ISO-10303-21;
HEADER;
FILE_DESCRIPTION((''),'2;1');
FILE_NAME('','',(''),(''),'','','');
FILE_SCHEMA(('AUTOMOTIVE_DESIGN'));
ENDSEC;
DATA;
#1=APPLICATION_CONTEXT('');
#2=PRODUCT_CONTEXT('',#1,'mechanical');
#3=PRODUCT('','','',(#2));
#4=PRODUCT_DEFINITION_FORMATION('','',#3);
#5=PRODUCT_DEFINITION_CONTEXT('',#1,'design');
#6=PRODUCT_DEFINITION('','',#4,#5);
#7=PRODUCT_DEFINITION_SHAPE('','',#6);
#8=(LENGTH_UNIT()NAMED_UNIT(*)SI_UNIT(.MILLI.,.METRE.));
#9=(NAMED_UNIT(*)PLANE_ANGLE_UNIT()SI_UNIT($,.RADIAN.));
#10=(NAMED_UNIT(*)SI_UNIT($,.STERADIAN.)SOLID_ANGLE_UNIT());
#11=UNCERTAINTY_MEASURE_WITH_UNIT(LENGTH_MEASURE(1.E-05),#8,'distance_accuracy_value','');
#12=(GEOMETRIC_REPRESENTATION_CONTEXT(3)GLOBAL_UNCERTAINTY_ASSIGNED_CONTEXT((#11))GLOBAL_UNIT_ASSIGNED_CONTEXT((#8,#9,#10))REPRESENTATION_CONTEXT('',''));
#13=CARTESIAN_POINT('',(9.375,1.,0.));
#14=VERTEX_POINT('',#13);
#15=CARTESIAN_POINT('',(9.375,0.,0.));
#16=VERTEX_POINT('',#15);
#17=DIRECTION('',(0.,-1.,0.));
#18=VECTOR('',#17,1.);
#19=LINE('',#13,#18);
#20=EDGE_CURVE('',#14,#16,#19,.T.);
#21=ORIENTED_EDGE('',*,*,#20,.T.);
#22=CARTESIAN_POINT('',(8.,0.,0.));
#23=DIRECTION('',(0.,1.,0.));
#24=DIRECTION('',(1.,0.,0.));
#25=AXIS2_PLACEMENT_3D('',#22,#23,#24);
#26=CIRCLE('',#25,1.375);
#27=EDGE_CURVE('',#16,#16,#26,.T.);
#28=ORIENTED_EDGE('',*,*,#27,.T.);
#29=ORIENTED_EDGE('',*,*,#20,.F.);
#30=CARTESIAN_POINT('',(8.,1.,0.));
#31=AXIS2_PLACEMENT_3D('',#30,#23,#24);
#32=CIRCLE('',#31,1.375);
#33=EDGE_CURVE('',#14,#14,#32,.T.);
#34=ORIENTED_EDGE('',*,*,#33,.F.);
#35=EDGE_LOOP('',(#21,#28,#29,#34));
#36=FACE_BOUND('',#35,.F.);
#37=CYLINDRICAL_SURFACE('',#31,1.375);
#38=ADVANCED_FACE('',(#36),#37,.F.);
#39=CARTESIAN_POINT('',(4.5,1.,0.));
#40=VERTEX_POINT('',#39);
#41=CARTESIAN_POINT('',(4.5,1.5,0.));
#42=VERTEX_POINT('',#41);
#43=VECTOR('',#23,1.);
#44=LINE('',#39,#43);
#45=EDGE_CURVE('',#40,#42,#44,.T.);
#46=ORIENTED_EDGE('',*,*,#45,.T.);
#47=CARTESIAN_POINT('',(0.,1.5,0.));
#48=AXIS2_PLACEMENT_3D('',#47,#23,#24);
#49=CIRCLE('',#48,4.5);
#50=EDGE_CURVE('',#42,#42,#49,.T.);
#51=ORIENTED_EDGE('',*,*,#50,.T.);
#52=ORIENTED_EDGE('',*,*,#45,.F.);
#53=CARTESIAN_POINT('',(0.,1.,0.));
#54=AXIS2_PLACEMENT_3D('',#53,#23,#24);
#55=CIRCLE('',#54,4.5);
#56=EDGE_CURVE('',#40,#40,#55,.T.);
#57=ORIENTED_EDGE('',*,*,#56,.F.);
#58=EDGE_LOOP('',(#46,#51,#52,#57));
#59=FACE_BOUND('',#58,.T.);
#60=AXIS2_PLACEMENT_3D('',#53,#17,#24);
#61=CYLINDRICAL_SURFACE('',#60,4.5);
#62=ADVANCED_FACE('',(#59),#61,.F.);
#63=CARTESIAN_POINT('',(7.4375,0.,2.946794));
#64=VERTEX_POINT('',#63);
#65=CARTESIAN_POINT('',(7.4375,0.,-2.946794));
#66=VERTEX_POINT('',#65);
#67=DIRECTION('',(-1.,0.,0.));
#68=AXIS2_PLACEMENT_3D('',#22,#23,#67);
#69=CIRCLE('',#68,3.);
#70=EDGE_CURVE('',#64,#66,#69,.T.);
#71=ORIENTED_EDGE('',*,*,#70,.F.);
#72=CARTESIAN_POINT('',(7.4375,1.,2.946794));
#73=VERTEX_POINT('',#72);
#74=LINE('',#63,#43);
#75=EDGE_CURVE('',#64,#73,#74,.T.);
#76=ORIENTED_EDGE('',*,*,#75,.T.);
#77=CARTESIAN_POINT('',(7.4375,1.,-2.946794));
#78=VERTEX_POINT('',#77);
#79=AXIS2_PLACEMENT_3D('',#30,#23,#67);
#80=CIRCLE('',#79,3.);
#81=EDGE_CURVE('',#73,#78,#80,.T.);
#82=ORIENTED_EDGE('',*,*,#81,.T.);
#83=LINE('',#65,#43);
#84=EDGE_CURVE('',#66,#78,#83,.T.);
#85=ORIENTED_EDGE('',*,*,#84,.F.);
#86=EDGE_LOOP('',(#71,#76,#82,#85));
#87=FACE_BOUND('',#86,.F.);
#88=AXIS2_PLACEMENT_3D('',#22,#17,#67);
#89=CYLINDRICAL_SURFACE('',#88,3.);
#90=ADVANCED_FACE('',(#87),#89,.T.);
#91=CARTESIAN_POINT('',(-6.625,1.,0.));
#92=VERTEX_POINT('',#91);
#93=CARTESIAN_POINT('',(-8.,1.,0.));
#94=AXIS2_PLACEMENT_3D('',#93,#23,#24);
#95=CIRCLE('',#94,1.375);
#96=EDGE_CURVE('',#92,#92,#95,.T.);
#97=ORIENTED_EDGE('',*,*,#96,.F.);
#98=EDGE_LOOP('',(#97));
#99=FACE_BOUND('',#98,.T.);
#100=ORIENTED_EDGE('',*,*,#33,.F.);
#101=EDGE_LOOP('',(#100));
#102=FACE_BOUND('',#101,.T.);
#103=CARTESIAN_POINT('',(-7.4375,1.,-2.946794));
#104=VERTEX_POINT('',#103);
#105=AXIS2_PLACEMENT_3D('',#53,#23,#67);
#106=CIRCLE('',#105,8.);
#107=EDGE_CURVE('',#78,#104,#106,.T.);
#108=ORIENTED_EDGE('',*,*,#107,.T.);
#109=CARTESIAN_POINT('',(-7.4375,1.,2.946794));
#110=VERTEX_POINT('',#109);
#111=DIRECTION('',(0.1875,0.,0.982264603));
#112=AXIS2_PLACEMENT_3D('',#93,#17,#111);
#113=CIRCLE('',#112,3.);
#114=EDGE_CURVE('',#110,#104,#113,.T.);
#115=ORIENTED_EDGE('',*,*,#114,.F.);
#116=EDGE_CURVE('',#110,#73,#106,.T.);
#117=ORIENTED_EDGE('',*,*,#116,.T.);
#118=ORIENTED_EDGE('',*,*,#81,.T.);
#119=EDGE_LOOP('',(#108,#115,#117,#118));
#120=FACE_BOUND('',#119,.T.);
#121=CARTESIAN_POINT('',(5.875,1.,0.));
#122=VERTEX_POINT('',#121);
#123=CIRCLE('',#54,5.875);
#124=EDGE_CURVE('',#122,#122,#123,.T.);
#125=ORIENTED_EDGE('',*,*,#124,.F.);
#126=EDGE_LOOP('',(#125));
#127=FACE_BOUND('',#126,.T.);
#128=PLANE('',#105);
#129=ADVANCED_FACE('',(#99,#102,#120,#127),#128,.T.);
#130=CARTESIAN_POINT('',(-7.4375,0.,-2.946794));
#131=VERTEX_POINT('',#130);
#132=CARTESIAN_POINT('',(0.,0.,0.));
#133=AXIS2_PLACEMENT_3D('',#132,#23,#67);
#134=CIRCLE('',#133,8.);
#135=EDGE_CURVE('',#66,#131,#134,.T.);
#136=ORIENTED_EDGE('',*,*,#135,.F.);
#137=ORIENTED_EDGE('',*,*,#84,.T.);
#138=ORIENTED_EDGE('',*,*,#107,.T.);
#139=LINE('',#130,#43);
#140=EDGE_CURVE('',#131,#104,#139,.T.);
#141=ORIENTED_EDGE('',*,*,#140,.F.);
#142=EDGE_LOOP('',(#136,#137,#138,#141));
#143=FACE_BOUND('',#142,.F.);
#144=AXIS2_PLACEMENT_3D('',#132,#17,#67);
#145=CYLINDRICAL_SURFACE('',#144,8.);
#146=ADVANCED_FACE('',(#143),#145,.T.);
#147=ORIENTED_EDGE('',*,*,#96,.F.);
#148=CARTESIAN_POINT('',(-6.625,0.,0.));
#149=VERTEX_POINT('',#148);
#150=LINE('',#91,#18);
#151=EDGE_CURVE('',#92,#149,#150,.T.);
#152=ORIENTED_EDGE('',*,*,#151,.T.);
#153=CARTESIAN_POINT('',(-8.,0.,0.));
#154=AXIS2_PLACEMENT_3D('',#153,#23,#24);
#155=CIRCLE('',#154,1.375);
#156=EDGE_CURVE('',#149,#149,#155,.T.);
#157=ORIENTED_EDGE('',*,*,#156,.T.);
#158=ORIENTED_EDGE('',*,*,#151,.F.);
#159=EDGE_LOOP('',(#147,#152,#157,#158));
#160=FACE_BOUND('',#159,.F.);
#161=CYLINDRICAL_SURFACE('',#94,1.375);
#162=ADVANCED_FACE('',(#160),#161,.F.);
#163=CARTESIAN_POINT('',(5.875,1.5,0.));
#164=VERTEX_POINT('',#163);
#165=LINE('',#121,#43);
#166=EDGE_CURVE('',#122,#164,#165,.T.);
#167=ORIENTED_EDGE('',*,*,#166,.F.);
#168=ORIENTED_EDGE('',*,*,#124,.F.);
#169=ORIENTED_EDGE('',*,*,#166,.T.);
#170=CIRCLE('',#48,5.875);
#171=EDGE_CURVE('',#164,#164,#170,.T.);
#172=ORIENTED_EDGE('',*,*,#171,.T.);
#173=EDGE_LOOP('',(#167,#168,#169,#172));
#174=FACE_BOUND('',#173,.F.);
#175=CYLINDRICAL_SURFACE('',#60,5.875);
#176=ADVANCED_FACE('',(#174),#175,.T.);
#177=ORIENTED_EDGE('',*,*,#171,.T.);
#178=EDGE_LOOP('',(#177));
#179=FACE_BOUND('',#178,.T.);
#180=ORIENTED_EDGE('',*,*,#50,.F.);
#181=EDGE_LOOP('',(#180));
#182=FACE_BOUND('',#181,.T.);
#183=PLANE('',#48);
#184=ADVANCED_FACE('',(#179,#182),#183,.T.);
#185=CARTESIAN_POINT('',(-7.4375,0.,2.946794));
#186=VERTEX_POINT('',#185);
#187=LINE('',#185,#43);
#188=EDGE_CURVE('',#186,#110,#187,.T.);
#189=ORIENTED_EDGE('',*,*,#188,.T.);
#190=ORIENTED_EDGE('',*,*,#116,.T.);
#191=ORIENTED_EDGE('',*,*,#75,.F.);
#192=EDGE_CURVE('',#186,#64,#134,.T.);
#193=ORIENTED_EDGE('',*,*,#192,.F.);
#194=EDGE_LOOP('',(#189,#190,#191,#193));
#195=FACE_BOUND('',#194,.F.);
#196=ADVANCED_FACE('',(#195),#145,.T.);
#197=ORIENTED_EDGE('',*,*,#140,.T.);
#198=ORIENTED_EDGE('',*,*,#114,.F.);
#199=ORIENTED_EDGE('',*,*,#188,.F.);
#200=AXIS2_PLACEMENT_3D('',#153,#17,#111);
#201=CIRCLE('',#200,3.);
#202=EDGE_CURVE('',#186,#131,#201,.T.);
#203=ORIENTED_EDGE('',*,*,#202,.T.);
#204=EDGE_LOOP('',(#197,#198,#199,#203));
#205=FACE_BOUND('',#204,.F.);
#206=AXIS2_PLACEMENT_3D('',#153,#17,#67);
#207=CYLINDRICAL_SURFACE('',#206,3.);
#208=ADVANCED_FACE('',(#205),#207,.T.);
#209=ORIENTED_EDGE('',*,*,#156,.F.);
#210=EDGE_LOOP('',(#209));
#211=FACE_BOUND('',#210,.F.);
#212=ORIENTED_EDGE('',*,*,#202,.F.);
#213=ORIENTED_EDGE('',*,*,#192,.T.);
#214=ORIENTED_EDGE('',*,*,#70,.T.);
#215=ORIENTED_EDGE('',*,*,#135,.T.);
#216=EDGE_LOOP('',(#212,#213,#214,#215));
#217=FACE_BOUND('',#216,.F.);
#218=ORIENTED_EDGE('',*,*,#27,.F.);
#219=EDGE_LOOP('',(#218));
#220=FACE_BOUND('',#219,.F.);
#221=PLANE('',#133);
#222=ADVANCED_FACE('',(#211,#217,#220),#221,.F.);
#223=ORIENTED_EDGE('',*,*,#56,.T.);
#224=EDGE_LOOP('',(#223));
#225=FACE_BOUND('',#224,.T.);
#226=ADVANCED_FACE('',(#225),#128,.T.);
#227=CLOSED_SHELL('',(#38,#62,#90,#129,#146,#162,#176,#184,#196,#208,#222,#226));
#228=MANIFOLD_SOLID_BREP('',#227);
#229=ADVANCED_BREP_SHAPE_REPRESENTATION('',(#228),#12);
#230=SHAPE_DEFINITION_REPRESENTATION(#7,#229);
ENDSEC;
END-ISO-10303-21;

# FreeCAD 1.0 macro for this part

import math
import FreeCAD as App
import Part
import Sketcher

doc = App.newDocument("Part")
params = doc.addObject("Spreadsheet::Sheet", "Params")
for row, (alias, value) in enumerate([
    ("sketch1_radius", "8 mm"),
    ("sketch1_radius2", "3 mm"),
    ("pad1_length", "1 mm"),
    ("sketch2_diameter", "9 mm"),
    ("sketch2_diameter2", "11.75 mm"),
    ("pad2_length", "0.5 mm"),
    ("sketch3_diameter", "2.75 mm"),
], start=1):
    params.set(f"A{row}", alias)
    params.set(f"B{row}", "=" + value)
    params.setAlias(f"B{row}", alias)

body = doc.addObject("PartDesign::Body", "Body")

# Sketch on XZ plane
sketch1 = body.newObject("Sketcher::SketchObject", "Sketch")
sketch1.AttachmentSupport = (doc.getObject("XZ_Plane"), [""])
sketch1.MapMode = "FlatFace"
sketch1.addGeometry(Part.ArcOfCircle(Part.Circle(App.Vector(0, 0, 0), App.Vector(0, 0, 1), 8), math.radians(21.613846), math.radians(158.386154)), False)
sketch1.addGeometry(Part.ArcOfCircle(Part.Circle(App.Vector(8, 0, 0), App.Vector(0, 0, 1), 3), math.radians(-100.806923), math.radians(100.806923)), False)
sketch1.addGeometry(Part.ArcOfCircle(Part.Circle(App.Vector(0, 0, 0), App.Vector(0, 0, 1), 8), math.radians(-158.386154), math.radians(-21.613846)), False)
sketch1.addGeometry(Part.ArcOfCircle(Part.Circle(App.Vector(-8, 0, 0), App.Vector(0, 0, 1), 3), math.radians(79.193077), math.radians(280.806923)), False)
sketch1.addConstraint(Sketcher.Constraint("Coincident", 0, 1, 1, 2))
sketch1.addConstraint(Sketcher.Constraint("Coincident", 1, 1, 2, 2))
sketch1.addConstraint(Sketcher.Constraint("Coincident", 2, 1, 3, 2))
sketch1.addConstraint(Sketcher.Constraint("Coincident", 3, 1, 0, 2))
sketch1.addConstraint(Sketcher.Constraint("Coincident", 0, 3, -1, 1))
sketch1.addConstraint(Sketcher.Constraint("Coincident", 2, 3, -1, 1))
sketch1.addConstraint(Sketcher.Constraint("Equal", 0, 2))
sketch1.addConstraint(Sketcher.Constraint("Equal", 1, 3))
sketch1.addConstraint(Sketcher.Constraint("Symmetric", 1, 3, 3, 3, -1, 1))
sketch1.addConstraint(Sketcher.Constraint("PointOnObject", 1, 3, -1))
sketch1.addConstraint(Sketcher.Constraint("Radius", 0, 8.0))
sketch1.addConstraint(Sketcher.Constraint("Radius", 1, 3.0))
sketch1.addConstraint(Sketcher.Constraint("DistanceX", 3, 3, 1, 3, 16.0))
sketch1.setExpression("Constraints[10]", "Params.sketch1_radius")
sketch1.setExpression("Constraints[11]", "Params.sketch1_radius2")
pad1 = body.newObject("PartDesign::Pad", "Pad")
pad1.Profile = sketch1
pad1.setExpression("Length", "Params.pad1_length")
pad1.Reversed = True

# Sketch on XZ plane
sketch2 = body.newObject("Sketcher::SketchObject", "Sketch001")
sketch2.AttachmentSupport = (doc.getObject("XZ_Plane"), [""])
sketch2.MapMode = "FlatFace"
sketch2.AttachmentOffset = App.Placement(App.Vector(0, 0, -1), App.Rotation())
sketch2.addGeometry(Part.Circle(App.Vector(0, 0, 0), App.Vector(0, 0, 1), 5.875), False)
sketch2.addGeometry(Part.Circle(App.Vector(0, 0, 0), App.Vector(0, 0, 1), 4.5), False)
sketch2.addConstraint(Sketcher.Constraint("Coincident", 0, 3, -1, 1))
sketch2.addConstraint(Sketcher.Constraint("Coincident", 1, 3, -1, 1))
sketch2.addConstraint(Sketcher.Constraint("Diameter", 1, 9.0))
sketch2.addConstraint(Sketcher.Constraint("Diameter", 0, 11.75))
sketch2.setExpression("Constraints[2]", "Params.sketch2_diameter")
sketch2.setExpression("Constraints[3]", "Params.sketch2_diameter2")
pad2 = body.newObject("PartDesign::Pad", "Pad001")
pad2.Profile = sketch2
pad2.setExpression("Length", "Params.pad2_length")
pad2.Reversed = True

# Sketch on XZ plane
sketch3 = body.newObject("Sketcher::SketchObject", "Sketch002")
sketch3.AttachmentSupport = (doc.getObject("XZ_Plane"), [""])
sketch3.MapMode = "FlatFace"
sketch3.AttachmentOffset = App.Placement(App.Vector(0, 0, -1), App.Rotation())
sketch3.addGeometry(Part.Circle(App.Vector(-8, 0, 0), App.Vector(0, 0, 1), 1.375), False)
sketch3.addGeometry(Part.Circle(App.Vector(8, 0, 0), App.Vector(0, 0, 1), 1.375), False)
sketch3.addConstraint(Sketcher.Constraint("Equal", 0, 1))
sketch3.addConstraint(Sketcher.Constraint("Symmetric", 0, 3, 1, 3, -1, 1))
sketch3.addConstraint(Sketcher.Constraint("PointOnObject", 0, 3, -1))
sketch3.addConstraint(Sketcher.Constraint("Diameter", 0, 2.75))
sketch3.addConstraint(Sketcher.Constraint("DistanceX", 0, 3, -1, 1, 8.0))
sketch3.setExpression("Constraints[3]", "Params.sketch3_diameter")
pocket1 = body.newObject("PartDesign::Pocket", "Pocket")
pocket1.Profile = sketch3
pocket1.Type = "UpToFirst"
pocket1.Reversed = True

doc.recompute()
